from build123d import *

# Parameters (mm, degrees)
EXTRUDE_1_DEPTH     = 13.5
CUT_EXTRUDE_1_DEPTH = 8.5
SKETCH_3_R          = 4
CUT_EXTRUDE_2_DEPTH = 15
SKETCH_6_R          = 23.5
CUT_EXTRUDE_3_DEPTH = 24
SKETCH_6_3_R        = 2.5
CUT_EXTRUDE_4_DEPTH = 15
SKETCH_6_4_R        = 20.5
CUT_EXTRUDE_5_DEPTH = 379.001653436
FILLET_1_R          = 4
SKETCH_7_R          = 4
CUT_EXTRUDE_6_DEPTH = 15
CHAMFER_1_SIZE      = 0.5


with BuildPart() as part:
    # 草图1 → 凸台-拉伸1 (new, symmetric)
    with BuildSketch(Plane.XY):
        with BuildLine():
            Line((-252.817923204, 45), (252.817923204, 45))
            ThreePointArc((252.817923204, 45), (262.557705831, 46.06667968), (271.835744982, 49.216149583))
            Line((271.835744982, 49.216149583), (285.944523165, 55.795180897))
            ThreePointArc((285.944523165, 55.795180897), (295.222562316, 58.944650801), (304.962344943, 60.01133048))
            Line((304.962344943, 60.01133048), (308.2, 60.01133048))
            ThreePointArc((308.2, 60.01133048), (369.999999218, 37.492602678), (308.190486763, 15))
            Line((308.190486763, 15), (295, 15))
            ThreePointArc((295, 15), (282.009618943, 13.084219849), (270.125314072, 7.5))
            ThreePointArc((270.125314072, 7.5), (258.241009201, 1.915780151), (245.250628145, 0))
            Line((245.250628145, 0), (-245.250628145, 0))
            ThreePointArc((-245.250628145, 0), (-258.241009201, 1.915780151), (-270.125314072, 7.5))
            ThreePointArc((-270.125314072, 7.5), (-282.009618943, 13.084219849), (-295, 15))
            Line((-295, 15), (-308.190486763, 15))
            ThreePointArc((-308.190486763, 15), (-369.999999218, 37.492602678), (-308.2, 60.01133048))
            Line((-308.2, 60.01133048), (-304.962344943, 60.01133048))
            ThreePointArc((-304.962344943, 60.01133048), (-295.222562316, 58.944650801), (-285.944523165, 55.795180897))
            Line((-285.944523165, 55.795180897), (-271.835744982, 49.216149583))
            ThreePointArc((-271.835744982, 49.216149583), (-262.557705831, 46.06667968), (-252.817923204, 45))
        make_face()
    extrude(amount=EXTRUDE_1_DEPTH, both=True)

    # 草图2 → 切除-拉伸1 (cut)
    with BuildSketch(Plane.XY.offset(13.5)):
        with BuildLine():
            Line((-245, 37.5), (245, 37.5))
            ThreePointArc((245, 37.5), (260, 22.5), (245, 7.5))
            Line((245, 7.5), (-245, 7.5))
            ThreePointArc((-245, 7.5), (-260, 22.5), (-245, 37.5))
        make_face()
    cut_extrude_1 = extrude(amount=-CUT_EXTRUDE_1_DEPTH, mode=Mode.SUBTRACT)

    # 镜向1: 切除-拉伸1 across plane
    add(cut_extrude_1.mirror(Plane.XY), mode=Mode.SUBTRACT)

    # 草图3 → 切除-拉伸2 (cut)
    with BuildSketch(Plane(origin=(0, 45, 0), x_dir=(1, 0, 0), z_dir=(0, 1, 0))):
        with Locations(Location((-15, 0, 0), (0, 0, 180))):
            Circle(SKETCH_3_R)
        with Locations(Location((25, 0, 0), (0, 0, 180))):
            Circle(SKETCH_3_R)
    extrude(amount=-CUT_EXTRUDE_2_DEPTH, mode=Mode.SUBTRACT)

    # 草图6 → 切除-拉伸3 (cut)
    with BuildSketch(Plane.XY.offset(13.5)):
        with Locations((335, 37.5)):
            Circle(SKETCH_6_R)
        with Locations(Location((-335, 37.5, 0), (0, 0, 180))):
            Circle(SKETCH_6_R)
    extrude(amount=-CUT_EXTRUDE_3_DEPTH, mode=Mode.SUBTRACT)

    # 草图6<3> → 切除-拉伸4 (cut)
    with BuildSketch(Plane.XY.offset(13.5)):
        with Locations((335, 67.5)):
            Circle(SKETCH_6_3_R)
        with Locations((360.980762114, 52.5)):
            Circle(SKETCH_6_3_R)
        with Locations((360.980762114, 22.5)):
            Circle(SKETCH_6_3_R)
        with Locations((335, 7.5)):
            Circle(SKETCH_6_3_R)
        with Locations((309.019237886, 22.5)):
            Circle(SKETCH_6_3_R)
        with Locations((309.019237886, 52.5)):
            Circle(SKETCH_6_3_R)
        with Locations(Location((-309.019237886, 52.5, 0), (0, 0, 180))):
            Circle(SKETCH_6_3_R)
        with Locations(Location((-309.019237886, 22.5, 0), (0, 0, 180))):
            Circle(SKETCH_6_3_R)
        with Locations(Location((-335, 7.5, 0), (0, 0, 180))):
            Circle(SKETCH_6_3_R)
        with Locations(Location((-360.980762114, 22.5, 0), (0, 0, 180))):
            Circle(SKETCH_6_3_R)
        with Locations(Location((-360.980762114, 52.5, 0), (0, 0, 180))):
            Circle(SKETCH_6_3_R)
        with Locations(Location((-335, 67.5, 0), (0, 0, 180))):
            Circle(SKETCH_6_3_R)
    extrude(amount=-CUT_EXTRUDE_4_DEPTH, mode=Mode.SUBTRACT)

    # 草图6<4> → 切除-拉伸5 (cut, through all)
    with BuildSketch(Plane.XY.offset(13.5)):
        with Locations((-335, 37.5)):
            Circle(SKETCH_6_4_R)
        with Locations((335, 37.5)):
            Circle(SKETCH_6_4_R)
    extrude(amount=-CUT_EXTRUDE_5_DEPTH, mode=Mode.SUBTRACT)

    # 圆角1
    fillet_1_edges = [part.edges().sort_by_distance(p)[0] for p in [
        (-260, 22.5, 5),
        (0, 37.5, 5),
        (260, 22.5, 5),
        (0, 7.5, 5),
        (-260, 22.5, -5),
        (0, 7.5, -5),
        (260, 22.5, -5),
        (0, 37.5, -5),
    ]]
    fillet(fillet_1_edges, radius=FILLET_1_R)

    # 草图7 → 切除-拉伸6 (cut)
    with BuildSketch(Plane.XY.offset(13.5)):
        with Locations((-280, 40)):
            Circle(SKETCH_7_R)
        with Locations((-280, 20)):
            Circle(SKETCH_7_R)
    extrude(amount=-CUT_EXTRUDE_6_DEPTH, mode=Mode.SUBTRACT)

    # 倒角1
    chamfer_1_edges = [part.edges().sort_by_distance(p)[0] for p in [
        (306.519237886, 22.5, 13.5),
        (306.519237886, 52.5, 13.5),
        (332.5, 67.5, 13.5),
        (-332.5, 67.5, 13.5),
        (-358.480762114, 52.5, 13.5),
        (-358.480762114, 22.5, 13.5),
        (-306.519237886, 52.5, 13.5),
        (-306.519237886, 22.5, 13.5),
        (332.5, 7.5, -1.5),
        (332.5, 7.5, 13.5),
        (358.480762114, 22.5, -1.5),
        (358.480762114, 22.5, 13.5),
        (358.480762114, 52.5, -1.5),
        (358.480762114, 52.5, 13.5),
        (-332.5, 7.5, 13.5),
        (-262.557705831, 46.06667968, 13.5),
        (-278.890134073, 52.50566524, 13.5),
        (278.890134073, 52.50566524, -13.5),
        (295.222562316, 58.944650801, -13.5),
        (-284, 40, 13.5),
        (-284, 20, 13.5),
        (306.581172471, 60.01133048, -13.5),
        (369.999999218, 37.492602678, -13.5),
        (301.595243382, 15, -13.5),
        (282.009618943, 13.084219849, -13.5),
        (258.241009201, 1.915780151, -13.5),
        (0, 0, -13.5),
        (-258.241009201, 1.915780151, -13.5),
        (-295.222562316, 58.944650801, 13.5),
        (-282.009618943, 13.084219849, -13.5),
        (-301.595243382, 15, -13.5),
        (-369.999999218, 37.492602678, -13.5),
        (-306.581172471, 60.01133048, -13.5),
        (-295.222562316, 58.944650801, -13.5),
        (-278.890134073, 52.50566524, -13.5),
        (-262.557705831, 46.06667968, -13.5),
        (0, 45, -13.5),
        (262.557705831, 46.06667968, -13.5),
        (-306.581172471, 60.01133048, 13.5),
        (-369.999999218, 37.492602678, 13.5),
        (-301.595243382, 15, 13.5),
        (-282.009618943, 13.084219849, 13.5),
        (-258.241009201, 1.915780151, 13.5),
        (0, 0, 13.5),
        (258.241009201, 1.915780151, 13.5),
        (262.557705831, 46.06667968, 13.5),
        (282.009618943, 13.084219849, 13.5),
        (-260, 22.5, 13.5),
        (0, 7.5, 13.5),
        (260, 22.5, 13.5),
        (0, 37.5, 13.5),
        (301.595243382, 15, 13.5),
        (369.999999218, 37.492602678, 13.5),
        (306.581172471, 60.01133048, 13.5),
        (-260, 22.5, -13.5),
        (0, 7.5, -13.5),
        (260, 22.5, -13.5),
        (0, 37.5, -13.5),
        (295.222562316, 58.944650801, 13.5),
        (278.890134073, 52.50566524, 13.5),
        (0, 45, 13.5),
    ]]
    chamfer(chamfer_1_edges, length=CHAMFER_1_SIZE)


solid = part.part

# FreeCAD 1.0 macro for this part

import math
import FreeCAD as App
import Part
import Sketcher

V = App.Vector
Q = App.Units.Quantity


def edges_at(feature, points):
    """Names of the edges that pass closest to the given points."""
    edges = feature.Shape.Edges
    near = lambda p: min(range(len(edges)), key=lambda i: edges[i].distToShape(Part.Vertex(*p))[0])
    return sorted({f"Edge{near(p) + 1}" for p in points})

doc = App.newDocument("Part")
body = doc.addObject("PartDesign::Body", "Body")

# Sketch on XY plane
sketch1 = body.newObject("Sketcher::SketchObject", "Sketch")
sketch1.AttachmentSupport = (doc.getObject("XY_Plane"), [""])
sketch1.MapMode = "FlatFace"
sketch1.addGeometry([
    Part.LineSegment(V(252.817923, 45, 0), V(-252.817923, 45, 0)),  # 0
    Part.ArcOfCircle(Part.Circle(V(-252.817923, 90, 0), V(0, 0, 1), 45), math.radians(-115), math.radians(-90)),  # 1
    Part.LineSegment(V(-271.835745, 49.21615, 0), V(-285.944523, 55.795181, 0)),  # 2
    Part.ArcOfCircle(Part.Circle(V(-304.962345, 15.01133, 0), V(0, 0, 1), 45), math.radians(65), math.radians(90)),  # 3
    Part.LineSegment(V(-304.962345, 60.01133, 0), V(-308.2, 60.01133, 0)),  # 4
    Part.ArcOfCircle(Part.Circle(V(-335, 37.5, 0), V(0, 0, 1), 35), math.radians(40.02942), math.radians(319.994799)),  # 5
    Part.LineSegment(V(-308.190487, 15, 0), V(-295, 15, 0)),  # 6
    Part.ArcOfCircle(Part.Circle(V(-295, -30, 0), V(0, 0, 1), 45), math.radians(56.44269), math.radians(90)),  # 7
    Part.ArcOfCircle(Part.Circle(V(-245.250628, 45, 0), V(0, 0, 1), 45), math.radians(-123.55731), math.radians(-90)),  # 8
    Part.LineSegment(V(-245.250628, 0, 0), V(245.250628, 0, 0)),  # 9
    Part.ArcOfCircle(Part.Circle(V(245.250628, 45, 0), V(0, 0, 1), 45), math.radians(-90), math.radians(-56.44269)),  # 10
    Part.ArcOfCircle(Part.Circle(V(295, -30, 0), V(0, 0, 1), 45), math.radians(90), math.radians(123.55731)),  # 11
    Part.LineSegment(V(295, 15, 0), V(308.190487, 15, 0)),  # 12
    Part.ArcOfCircle(Part.Circle(V(335, 37.5, 0), V(0, 0, 1), 35), math.radians(-139.994799), math.radians(139.97058)),  # 13
    Part.LineSegment(V(308.2, 60.01133, 0), V(304.962345, 60.01133, 0)),  # 14
    Part.ArcOfCircle(Part.Circle(V(304.962345, 15.01133, 0), V(0, 0, 1), 45), math.radians(90), math.radians(115)),  # 15
    Part.LineSegment(V(285.944523, 55.795181, 0), V(271.835745, 49.21615, 0)),  # 16
    Part.ArcOfCircle(Part.Circle(V(252.817923, 90, 0), V(0, 0, 1), 45), math.radians(-90), math.radians(-65)),  # 17
], False)
sketch1.addConstraint([
    Sketcher.Constraint("Tangent", 0, 2, 1, 2),
    Sketcher.Constraint("Tangent", 1, 1, 2, 1),
    Sketcher.Constraint("Tangent", 2, 2, 3, 1),
    Sketcher.Constraint("Tangent", 3, 2, 4, 1),
    Sketcher.Constraint("Coincident", 4, 2, 5, 1),
    Sketcher.Constraint("Coincident", 5, 2, 6, 1),
    Sketcher.Constraint("Tangent", 6, 2, 7, 2),
    Sketcher.Constraint("Tangent", 7, 1, 8, 1),
    Sketcher.Constraint("Tangent", 8, 2, 9, 1),
    Sketcher.Constraint("Tangent", 9, 2, 10, 1),
    Sketcher.Constraint("Tangent", 10, 2, 11, 2),
    Sketcher.Constraint("Tangent", 11, 1, 12, 1),
    Sketcher.Constraint("Coincident", 12, 2, 13, 1),
    Sketcher.Constraint("Coincident", 13, 2, 14, 1),
    Sketcher.Constraint("Tangent", 14, 2, 15, 1),
    Sketcher.Constraint("Tangent", 15, 2, 16, 1),
    Sketcher.Constraint("Tangent", 16, 2, 17, 2),
    Sketcher.Constraint("Tangent", 17, 1, 0, 1),
    Sketcher.Constraint("Horizontal", 0),
    Sketcher.Constraint("Horizontal", 4),
    Sketcher.Constraint("Horizontal", 6),
    Sketcher.Constraint("Horizontal", 9),
    Sketcher.Constraint("Horizontal", 12),
    Sketcher.Constraint("Horizontal", 14),
    Sketcher.Constraint("Equal", 1, 3),
    Sketcher.Constraint("Equal", 3, 7),
    Sketcher.Constraint("Equal", 7, 8),
    Sketcher.Constraint("Equal", 8, 10),
    Sketcher.Constraint("Equal", 10, 11),
    Sketcher.Constraint("Equal", 5, 13),
    Sketcher.Constraint("Equal", 11, 15),
    Sketcher.Constraint("Equal", 15, 17),
    Sketcher.Constraint("Symmetric", 8, 2, 9, 2, -1, 1),
    Sketcher.Constraint("Symmetric", 5, 3, 13, 3, -2),
    Sketcher.Constraint("Symmetric", 3, 3, 15, 3, -2),
    Sketcher.Constraint("Horizontal", 7, 3, 11, 3),
    Sketcher.Constraint("Horizontal", 10, 3, 0, 2),
    Sketcher.Constraint("Horizontal", 2, 2, 15, 2),
    Sketcher.Constraint("Radius", 1, 45.0),
    Sketcher.Constraint("Radius", 5, 35.0),
    Sketcher.Constraint("Angle", 2, Q("155 deg")),
    Sketcher.Constraint("DistanceX", 5, 3, -1, 1, 335.0),
    Sketcher.Constraint("DistanceX", 7, 3, -1, 1, 295.0),
    Sketcher.Constraint("DistanceY", 7, 3, -1, 1, 30.0),
    Sketcher.Constraint("DistanceY", 10, 2, 13, 3, 30.0),
    Sketcher.Constraint("DistanceX", 4, 2, -1, 1, 308.2),
    Sketcher.Constraint("DistanceX", 0, 2, 0, 1, 505.635846),
])
pad1 = body.newObject("PartDesign::Pad", "Pad")
pad1.Profile = sketch1
pad1.Length = 27
pad1.Midplane = True

# Sketch on XY plane
sketch2 = body.newObject("Sketcher::SketchObject", "Sketch001")
sketch2.AttachmentSupport = (doc.getObject("XY_Plane"), [""])
sketch2.MapMode = "FlatFace"
sketch2.AttachmentOffset = App.Placement(V(0, 0, 13.5), App.Rotation())
sketch2.addGeometry([
    Part.LineSegment(V(245, 37.5, 0), V(-245, 37.5, 0)),
    Part.ArcOfCircle(Part.Circle(V(-245, 22.5, 0), V(0, 0, 1), 15), math.radians(90), math.radians(270)),
    Part.LineSegment(V(-245, 7.5, 0), V(245, 7.5, 0)),
    Part.ArcOfCircle(Part.Circle(V(245, 22.5, 0), V(0, 0, 1), 15), math.radians(-90), math.radians(90)),
], False)
sketch2.addConstraint([
    Sketcher.Constraint("Tangent", 0, 2, 1, 1),
    Sketcher.Constraint("Tangent", 1, 2, 2, 1),
    Sketcher.Constraint("Tangent", 2, 2, 3, 1),
    Sketcher.Constraint("Tangent", 3, 2, 0, 1),
    Sketcher.Constraint("Horizontal", 0),
    Sketcher.Constraint("Horizontal", 2),
    Sketcher.Constraint("Radius", 1, 15.0),
    Sketcher.Constraint("DistanceX", 0, 2, 0, 1, 490.0),
    Sketcher.Constraint("DistanceX", 1, 3, -1, 1, 245.0),
    Sketcher.Constraint("DistanceY", -1, 1, 1, 3, 22.5),
])
pocket1 = body.newObject("PartDesign::Pocket", "Pocket")
pocket1.Profile = sketch2
pocket1.Length = 8.5
doc.recompute()

mirrored = body.newObject("PartDesign::Mirrored", "Mirrored")
mirrored.Originals = [pocket1]
mirrored.MirrorPlane = (doc.getObject("XY_Plane"), [""])
body.Tip = mirrored

# Sketch on XZ plane
sketch3 = body.newObject("Sketcher::SketchObject", "Sketch002")
sketch3.AttachmentSupport = (doc.getObject("XZ_Plane"), [""])
sketch3.MapMode = "FlatFace"
sketch3.AttachmentOffset = App.Placement(V(0, 0, -45), App.Rotation())
sketch3.addGeometry([
    Part.Circle(V(-15, 0, 0), V(0, 0, 1), 4),
    Part.Circle(V(25, 0, 0), V(0, 0, 1), 4),
], False)
sketch3.addConstraint([
    Sketcher.Constraint("Equal", 0, 1),
    Sketcher.Constraint("PointOnObject", 0, 3, -1),
    Sketcher.Constraint("PointOnObject", 1, 3, -1),
    Sketcher.Constraint("Diameter", 0, 8.0),
    Sketcher.Constraint("DistanceX", 0, 3, -1, 1, 15.0),
    Sketcher.Constraint("DistanceX", -1, 1, 1, 3, 25.0),
])
pocket2 = body.newObject("PartDesign::Pocket", "Pocket001")
pocket2.Profile = sketch3
pocket2.Length = 15
pocket2.Reversed = True

# Sketch on XY plane
sketch4 = body.newObject("Sketcher::SketchObject", "Sketch003")
sketch4.AttachmentSupport = (doc.getObject("XY_Plane"), [""])
sketch4.MapMode = "FlatFace"
sketch4.AttachmentOffset = App.Placement(V(0, 0, 13.5), App.Rotation())
sketch4.addGeometry([
    Part.Circle(V(335, 37.5, 0), V(0, 0, 1), 23.5),
    Part.Circle(V(-335, 37.5, 0), V(0, 0, 1), 23.5),
], False)
sketch4.addConstraint([
    Sketcher.Constraint("Equal", 0, 1),
    Sketcher.Constraint("Symmetric", 0, 3, 1, 3, -2),
    Sketcher.Constraint("Diameter", 0, 47.0),
    Sketcher.Constraint("DistanceX", -1, 1, 0, 3, 335.0),
    Sketcher.Constraint("DistanceY", -1, 1, 0, 3, 37.5),
])
pocket3 = body.newObject("PartDesign::Pocket", "Pocket002")
pocket3.Profile = sketch4
pocket3.Length = 24

# Sketch on XY plane
sketch5 = body.newObject("Sketcher::SketchObject", "Sketch004")
sketch5.AttachmentSupport = (doc.getObject("XY_Plane"), [""])
sketch5.MapMode = "FlatFace"
sketch5.AttachmentOffset = App.Placement(V(0, 0, 13.5), App.Rotation())
sketch5.addGeometry([
    Part.Circle(V(335, 67.5, 0), V(0, 0, 1), 2.5),  # 0
    Part.Circle(V(360.980762, 52.5, 0), V(0, 0, 1), 2.5),  # 1
    Part.Circle(V(360.980762, 22.5, 0), V(0, 0, 1), 2.5),  # 2
    Part.Circle(V(335, 7.5, 0), V(0, 0, 1), 2.5),  # 3
    Part.Circle(V(309.019238, 22.5, 0), V(0, 0, 1), 2.5),  # 4
    Part.Circle(V(309.019238, 52.5, 0), V(0, 0, 1), 2.5),  # 5
    Part.Circle(V(-309.019238, 52.5, 0), V(0, 0, 1), 2.5),  # 6
    Part.Circle(V(-309.019238, 22.5, 0), V(0, 0, 1), 2.5),  # 7
    Part.Circle(V(-335, 7.5, 0), V(0, 0, 1), 2.5),  # 8
    Part.Circle(V(-360.980762, 22.5, 0), V(0, 0, 1), 2.5),  # 9
    Part.Circle(V(-360.980762, 52.5, 0), V(0, 0, 1), 2.5),  # 10
    Part.Circle(V(-335, 67.5, 0), V(0, 0, 1), 2.5),  # 11
], False)
sketch5.addConstraint([
    Sketcher.Constraint("Equal", 0, 1),
    Sketcher.Constraint("Equal", 1, 2),
    Sketcher.Constraint("Equal", 2, 3),
    Sketcher.Constraint("Equal", 3, 4),
    Sketcher.Constraint("Equal", 4, 5),
    Sketcher.Constraint("Equal", 5, 6),
    Sketcher.Constraint("Equal", 6, 7),
    Sketcher.Constraint("Equal", 7, 8),
    Sketcher.Constraint("Equal", 8, 9),
    Sketcher.Constraint("Equal", 9, 10),
    Sketcher.Constraint("Equal", 10, 11),
    Sketcher.Constraint("Symmetric", 5, 3, 6, 3, -2),
    Sketcher.Constraint("Symmetric", 4, 3, 7, 3, -2),
    Sketcher.Constraint("Symmetric", 3, 3, 8, 3, -2),
    Sketcher.Constraint("Symmetric", 2, 3, 9, 3, -2),
    Sketcher.Constraint("Symmetric", 1, 3, 10, 3, -2),
    Sketcher.Constraint("Symmetric", 0, 3, 11, 3, -2),
    Sketcher.Constraint("Horizontal", 2, 3, 4, 3),
    Sketcher.Constraint("Horizontal", 1, 3, 5, 3),
    Sketcher.Constraint("Vertical", 1, 3, 2, 3),
    Sketcher.Constraint("Vertical", 0, 3, 3, 3),
    Sketcher.Constraint("Vertical", 4, 3, 5, 3),
    Sketcher.Constraint("Diameter", 0, 5.0),
    Sketcher.Constraint("DistanceX", -1, 1, 0, 3, 335.0),
    Sketcher.Constraint("DistanceY", 1, 3, 0, 3, 15.0),
    Sketcher.Constraint("DistanceY", 2, 3, 1, 3, 30.0),
    Sketcher.Constraint("DistanceY", 3, 3, 2, 3, 15.0),
    Sketcher.Constraint("DistanceX", 6, 3, 1, 3, 670.0),
    Sketcher.Constraint("DistanceY", -1, 1, 0, 3, 67.5),
    Sketcher.Constraint("DistanceX", -1, 1, 1, 3, 360.980762),
])
pocket4 = body.newObject("PartDesign::Pocket", "Pocket003")
pocket4.Profile = sketch5
pocket4.Length = 15

# Sketch on XY plane
sketch6 = body.newObject("Sketcher::SketchObject", "Sketch005")
sketch6.AttachmentSupport = (doc.getObject("XY_Plane"), [""])
sketch6.MapMode = "FlatFace"
sketch6.AttachmentOffset = App.Placement(V(0, 0, 13.5), App.Rotation())
sketch6.addGeometry([
    Part.Circle(V(-335, 37.5, 0), V(0, 0, 1), 20.5),
    Part.Circle(V(335, 37.5, 0), V(0, 0, 1), 20.5),
], False)
sketch6.addConstraint([
    Sketcher.Constraint("Equal", 0, 1),
    Sketcher.Constraint("Symmetric", 0, 3, 1, 3, -2),
    Sketcher.Constraint("Diameter", 0, 41.0),
    Sketcher.Constraint("DistanceX", 0, 3, -1, 1, 335.0),
    Sketcher.Constraint("DistanceY", -1, 1, 0, 3, 37.5),
])
pocket5 = body.newObject("PartDesign::Pocket", "Pocket004")
pocket5.Profile = sketch6
pocket5.Type = "ThroughAll"
doc.recompute()

fillet = body.newObject("PartDesign::Fillet", "Fillet")
fillet.Base = (pocket5, edges_at(pocket5, [
    (-260, 22.5, 5),
    (0, 37.5, 5),
    (260, 22.5, 5),
    (0, 7.5, 5),
    (-260, 22.5, -5),
    (0, 7.5, -5),
    (260, 22.5, -5),
    (0, 37.5, -5),
]))
fillet.Radius = 4

# Sketch on XY plane
sketch7 = body.newObject("Sketcher::SketchObject", "Sketch006")
sketch7.AttachmentSupport = (doc.getObject("XY_Plane"), [""])
sketch7.MapMode = "FlatFace"
sketch7.AttachmentOffset = App.Placement(V(0, 0, 13.5), App.Rotation())
sketch7.addGeometry([
    Part.Circle(V(-280, 40, 0), V(0, 0, 1), 4),
    Part.Circle(V(-280, 20, 0), V(0, 0, 1), 4),
], False)
sketch7.addConstraint([
    Sketcher.Constraint("Equal", 0, 1),
    Sketcher.Constraint("Vertical", 0, 3, 1, 3),
    Sketcher.Constraint("Diameter", 0, 8.0),
    Sketcher.Constraint("DistanceX", 0, 3, -1, 1, 280.0),
    Sketcher.Constraint("DistanceY", -1, 1, 0, 3, 40.0),
    Sketcher.Constraint("DistanceY", -1, 1, 1, 3, 20.0),
])
pocket6 = body.newObject("PartDesign::Pocket", "Pocket005")
pocket6.Profile = sketch7
pocket6.Length = 15
doc.recompute()

chamfer = body.newObject("PartDesign::Chamfer", "Chamfer")
chamfer.Base = (pocket6, edges_at(pocket6, [
    (306.519, 22.5, 13.5),
    (306.519, 52.5, 13.5),
    (332.5, 67.5, 13.5),
    (-332.5, 67.5, 13.5),
    (-358.481, 52.5, 13.5),
    (-358.481, 22.5, 13.5),
    (-306.519, 52.5, 13.5),
    (-306.519, 22.5, 13.5),
    (332.5, 7.5, -1.5),
    (332.5, 7.5, 13.5),
    (358.481, 22.5, -1.5),
    (358.481, 22.5, 13.5),
    (358.481, 52.5, -1.5),
    (358.481, 52.5, 13.5),
    (-332.5, 7.5, 13.5),
    (-262.558, 46.067, 13.5),
    (-278.89, 52.506, 13.5),
    (278.89, 52.506, -13.5),
    (295.223, 58.945, -13.5),
    (-284, 40, 13.5),
    (-284, 20, 13.5),
    (306.581, 60.011, -13.5),
    (370, 37.493, -13.5),
    (301.595, 15, -13.5),
    (282.01, 13.084, -13.5),
    (258.241, 1.916, -13.5),
    (0, 0, -13.5),
    (-258.241, 1.916, -13.5),
    (-295.223, 58.945, 13.5),
    (-282.01, 13.084, -13.5),
    (-301.595, 15, -13.5),
    (-370, 37.493, -13.5),
    (-306.581, 60.011, -13.5),
    (-295.223, 58.945, -13.5),
    (-278.89, 52.506, -13.5),
    (-262.558, 46.067, -13.5),
    (0, 45, -13.5),
    (262.558, 46.067, -13.5),
    (-306.581, 60.011, 13.5),
    (-370, 37.493, 13.5),
    (-301.595, 15, 13.5),
    (-282.01, 13.084, 13.5),
    (-258.241, 1.916, 13.5),
    (0, 0, 13.5),
    (258.241, 1.916, 13.5),
    (262.558, 46.067, 13.5),
    (282.01, 13.084, 13.5),
    (-260, 22.5, 13.5),
    (0, 7.5, 13.5),
    (260, 22.5, 13.5),
    (0, 37.5, 13.5),
    (301.595, 15, 13.5),
    (370, 37.493, 13.5),
    (306.581, 60.011, 13.5),
    (-260, 22.5, -13.5),
    (0, 7.5, -13.5),
    (260, 22.5, -13.5),
    (0, 37.5, -13.5),
    (295.223, 58.945, 13.5),
    (278.89, 52.506, 13.5),
    (0, 45, 13.5),
]))
chamfer.Size = 0.5

doc.recompute()
